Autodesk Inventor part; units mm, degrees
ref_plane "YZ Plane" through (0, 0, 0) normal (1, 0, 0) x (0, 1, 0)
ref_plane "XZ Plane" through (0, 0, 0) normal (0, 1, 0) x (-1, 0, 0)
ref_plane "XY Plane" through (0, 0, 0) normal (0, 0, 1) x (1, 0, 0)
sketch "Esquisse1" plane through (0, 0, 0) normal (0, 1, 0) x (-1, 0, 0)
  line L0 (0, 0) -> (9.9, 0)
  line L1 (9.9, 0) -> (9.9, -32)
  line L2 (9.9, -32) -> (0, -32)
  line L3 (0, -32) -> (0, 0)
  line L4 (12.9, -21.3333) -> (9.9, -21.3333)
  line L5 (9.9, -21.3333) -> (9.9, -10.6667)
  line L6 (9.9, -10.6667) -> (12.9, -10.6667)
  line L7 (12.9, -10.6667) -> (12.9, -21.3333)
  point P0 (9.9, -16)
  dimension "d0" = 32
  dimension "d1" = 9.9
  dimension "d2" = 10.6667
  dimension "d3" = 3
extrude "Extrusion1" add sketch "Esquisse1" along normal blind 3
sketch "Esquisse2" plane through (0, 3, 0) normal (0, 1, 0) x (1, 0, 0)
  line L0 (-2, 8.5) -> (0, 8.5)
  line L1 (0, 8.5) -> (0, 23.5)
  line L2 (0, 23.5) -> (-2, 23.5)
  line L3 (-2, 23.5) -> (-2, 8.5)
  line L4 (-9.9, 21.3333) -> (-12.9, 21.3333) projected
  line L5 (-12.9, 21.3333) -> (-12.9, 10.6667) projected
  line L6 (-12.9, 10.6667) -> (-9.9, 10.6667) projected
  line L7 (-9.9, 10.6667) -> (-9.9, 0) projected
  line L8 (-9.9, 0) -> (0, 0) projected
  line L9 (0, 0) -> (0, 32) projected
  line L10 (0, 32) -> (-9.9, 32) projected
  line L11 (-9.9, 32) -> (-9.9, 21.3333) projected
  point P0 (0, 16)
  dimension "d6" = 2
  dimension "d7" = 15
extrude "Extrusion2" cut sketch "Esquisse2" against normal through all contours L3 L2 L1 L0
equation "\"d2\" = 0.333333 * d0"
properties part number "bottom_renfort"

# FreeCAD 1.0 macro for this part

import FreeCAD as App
import Part
import Sketcher

V = App.Vector
Q = App.Units.Quantity

doc = App.newDocument("Part")
body = doc.addObject("PartDesign::Body", "Body")

# Sketch on XZ plane
sketch1 = body.newObject("Sketcher::SketchObject", "Sketch")
sketch1.AttachmentSupport = (doc.getObject("XZ_Plane"), [""])
sketch1.MapMode = "FlatFace"
sketch1.addGeometry([
    Part.LineSegment(V(-9.9, 0, 0), V(0, 0, 0)),  # 0
    Part.LineSegment(V(0, 0, 0), V(0, -32, 0)),  # 1
    Part.LineSegment(V(0, -32, 0), V(-9.9, -32, 0)),  # 2
    Part.LineSegment(V(-9.9, -32, 0), V(-9.9, -21.3333, 0)),  # 3
    Part.LineSegment(V(-9.9, -21.3333, 0), V(-12.9, -21.3333, 0)),  # 4
    Part.LineSegment(V(-12.9, -21.3333, 0), V(-12.9, -10.6667, 0)),  # 5
    Part.LineSegment(V(-12.9, -10.6667, 0), V(-9.9, -10.6667, 0)),  # 6
    Part.LineSegment(V(-9.9, -10.6667, 0), V(-9.9, 0, 0)),  # 7
], False)
sketch1.addConstraint([
    Sketcher.Constraint("Coincident", 0, 2, 1, 1),
    Sketcher.Constraint("Coincident", 1, 2, 2, 1),
    Sketcher.Constraint("Coincident", 2, 2, 3, 1),
    Sketcher.Constraint("Coincident", 3, 2, 4, 1),
    Sketcher.Constraint("Coincident", 4, 2, 5, 1),
    Sketcher.Constraint("Coincident", 5, 2, 6, 1),
    Sketcher.Constraint("Coincident", 6, 2, 7, 1),
    Sketcher.Constraint("Coincident", 7, 2, 0, 1),
    Sketcher.Constraint("Horizontal", 0),
    Sketcher.Constraint("Vertical", 1),
    Sketcher.Constraint("Horizontal", 2),
    Sketcher.Constraint("Vertical", 3),
    Sketcher.Constraint("Horizontal", 4),
    Sketcher.Constraint("Vertical", 5),
    Sketcher.Constraint("Horizontal", 6),
    Sketcher.Constraint("Vertical", 7),
    Sketcher.Constraint("Coincident", 0, 2, -1, 1),
    Sketcher.Constraint("Vertical", 3, 2, 6, 2),
    Sketcher.Constraint("Equal", 3, 5),
    Sketcher.Constraint("Equal", 5, 7),
    Sketcher.Constraint("DistanceX", 4, 2, 4, 1, Q("3 mm")),
    Sketcher.Constraint("DistanceY", 1, 2, 1, 1, Q("32 mm")),
    Sketcher.Constraint("DistanceX", 0, 1, 0, 2, Q("9.9 mm")),
])
pad1 = body.newObject("PartDesign::Pad", "Pad")
pad1.Profile = sketch1
pad1.Length = 3
pad1.Reversed = True

# Sketch on XZ plane
sketch2 = body.newObject("Sketcher::SketchObject", "Sketch001")
sketch2.AttachmentSupport = (doc.getObject("XZ_Plane"), [""])
sketch2.MapMode = "FlatFace"
sketch2.AttachmentOffset = App.Placement(V(0, 0, -3), App.Rotation())
sketch2.addGeometry([
    Part.LineSegment(V(-2, -23.5, 0), V(-2, -8.5, 0)),
    Part.LineSegment(V(-2, -8.5, 0), V(0, -8.5, 0)),
    Part.LineSegment(V(0, -8.5, 0), V(0, -23.5, 0)),
    Part.LineSegment(V(0, -23.5, 0), V(-2, -23.5, 0)),
], False)
sketch2.addConstraint([
    Sketcher.Constraint("Coincident", 0, 2, 1, 1),
    Sketcher.Constraint("Coincident", 1, 2, 2, 1),
    Sketcher.Constraint("Coincident", 2, 2, 3, 1),
    Sketcher.Constraint("Coincident", 3, 2, 0, 1),
    Sketcher.Constraint("Vertical", 0),
    Sketcher.Constraint("Horizontal", 1),
    Sketcher.Constraint("Vertical", 2),
    Sketcher.Constraint("Horizontal", 3),
    Sketcher.Constraint("PointOnObject", 1, 2, -2),
    Sketcher.Constraint("DistanceX", 1, 1, 1, 2, Q("2 mm")),
    Sketcher.Constraint("DistanceY", 0, 1, 0, 2, Q("15 mm")),
    Sketcher.Constraint("DistanceY", 0, 2, -1, 1, Q("8.5 mm")),
])
pocket1 = body.newObject("PartDesign::Pocket", "Pocket")
pocket1.Profile = sketch2
pocket1.Type = "ThroughAll"
pocket1.Reversed = True

doc.recompute()
